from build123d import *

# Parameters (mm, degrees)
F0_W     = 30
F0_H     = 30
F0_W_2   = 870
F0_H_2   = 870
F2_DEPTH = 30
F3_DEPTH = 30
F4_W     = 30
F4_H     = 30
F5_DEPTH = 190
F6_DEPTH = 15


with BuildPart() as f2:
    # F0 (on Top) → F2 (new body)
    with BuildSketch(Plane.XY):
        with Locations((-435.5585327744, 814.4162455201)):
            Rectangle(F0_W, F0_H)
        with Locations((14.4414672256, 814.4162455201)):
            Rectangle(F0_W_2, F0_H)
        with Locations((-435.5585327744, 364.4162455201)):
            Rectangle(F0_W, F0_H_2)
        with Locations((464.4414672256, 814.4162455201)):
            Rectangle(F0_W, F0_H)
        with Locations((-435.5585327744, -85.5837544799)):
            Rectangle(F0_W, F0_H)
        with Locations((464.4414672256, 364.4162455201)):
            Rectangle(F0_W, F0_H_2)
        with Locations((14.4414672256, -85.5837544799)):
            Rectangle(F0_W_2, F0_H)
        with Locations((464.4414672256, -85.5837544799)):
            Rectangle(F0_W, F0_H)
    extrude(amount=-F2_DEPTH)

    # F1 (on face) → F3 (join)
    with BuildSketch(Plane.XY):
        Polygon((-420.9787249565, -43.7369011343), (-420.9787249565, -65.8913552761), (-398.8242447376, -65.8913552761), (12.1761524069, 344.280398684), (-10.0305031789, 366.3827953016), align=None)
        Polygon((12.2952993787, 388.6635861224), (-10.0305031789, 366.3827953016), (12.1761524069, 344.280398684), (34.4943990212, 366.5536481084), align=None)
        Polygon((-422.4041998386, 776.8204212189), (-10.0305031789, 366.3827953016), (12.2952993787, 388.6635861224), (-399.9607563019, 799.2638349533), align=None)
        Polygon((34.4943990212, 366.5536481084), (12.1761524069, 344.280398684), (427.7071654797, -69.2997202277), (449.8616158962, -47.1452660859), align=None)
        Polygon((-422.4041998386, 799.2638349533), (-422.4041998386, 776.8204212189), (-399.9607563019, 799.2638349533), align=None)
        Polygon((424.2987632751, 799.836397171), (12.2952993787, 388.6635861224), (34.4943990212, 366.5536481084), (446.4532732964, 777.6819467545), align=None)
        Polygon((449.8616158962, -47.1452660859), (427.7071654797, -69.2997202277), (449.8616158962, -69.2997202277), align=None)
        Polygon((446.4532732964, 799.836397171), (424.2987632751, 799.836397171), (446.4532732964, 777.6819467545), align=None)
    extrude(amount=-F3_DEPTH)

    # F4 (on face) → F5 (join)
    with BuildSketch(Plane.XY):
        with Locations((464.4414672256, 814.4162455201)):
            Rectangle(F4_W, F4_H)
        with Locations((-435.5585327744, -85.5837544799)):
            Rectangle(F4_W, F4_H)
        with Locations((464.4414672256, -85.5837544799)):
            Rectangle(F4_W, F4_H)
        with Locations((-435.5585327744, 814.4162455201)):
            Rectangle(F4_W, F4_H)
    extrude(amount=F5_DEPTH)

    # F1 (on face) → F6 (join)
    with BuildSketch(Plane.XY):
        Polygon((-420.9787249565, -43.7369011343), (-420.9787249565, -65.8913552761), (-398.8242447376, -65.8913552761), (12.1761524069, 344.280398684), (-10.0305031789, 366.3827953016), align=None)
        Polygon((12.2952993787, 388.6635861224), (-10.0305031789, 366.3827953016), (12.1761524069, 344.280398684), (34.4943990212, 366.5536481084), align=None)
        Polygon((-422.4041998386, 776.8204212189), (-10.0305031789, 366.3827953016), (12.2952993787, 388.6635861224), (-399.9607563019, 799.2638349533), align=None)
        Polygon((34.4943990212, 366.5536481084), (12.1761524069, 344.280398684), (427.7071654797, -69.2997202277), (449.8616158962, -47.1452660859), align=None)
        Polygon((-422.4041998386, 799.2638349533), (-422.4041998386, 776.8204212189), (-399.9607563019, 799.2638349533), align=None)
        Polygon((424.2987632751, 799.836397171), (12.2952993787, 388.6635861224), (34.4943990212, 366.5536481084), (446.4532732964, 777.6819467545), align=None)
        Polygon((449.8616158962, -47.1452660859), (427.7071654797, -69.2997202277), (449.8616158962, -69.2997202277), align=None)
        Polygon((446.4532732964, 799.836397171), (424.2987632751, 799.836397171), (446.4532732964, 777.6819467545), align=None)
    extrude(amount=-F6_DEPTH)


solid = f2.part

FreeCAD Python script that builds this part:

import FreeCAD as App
import Part
import Sketcher
from FreeCAD import Vector
Q = App.Units.Quantity


def add_polygon(sketch, points):
    """Adds a closed chain of lines whose ends are joined by coincident constraints."""
    first, n = sketch.GeometryCount, len(points)
    for a, b in zip(points, points[1:] + points[:1]):
        sketch.addGeometry(Part.LineSegment(App.Vector(*a, 0), App.Vector(*b, 0)), False)
    for i in range(n):
        sketch.addConstraint(Sketcher.Constraint("Coincident", first + i, 2, first + (i + 1) % n, 1))

doc = App.newDocument("Part")
body = doc.addObject("PartDesign::Body", "Body")

sketch1 = body.newObject("Sketcher::SketchObject", "Sketch")
sketch1.AttachmentSupport = (doc.getObject("XY_Plane"), [""])
sketch1.MapMode = "FlatFace"
add_polygon(sketch1, [(-451, -101), (479, -101), (479, 829), (-451, 829)])
add_polygon(sketch1, [(449, -71), (-421, -71), (-421, 799), (449, 799)])
sketch1.addConstraint(Sketcher.Constraint("Horizontal", 0))
sketch1.addConstraint(Sketcher.Constraint("Vertical", 1))
sketch1.addConstraint(Sketcher.Constraint("Horizontal", 2))
sketch1.addConstraint(Sketcher.Constraint("Vertical", 3))
sketch1.addConstraint(Sketcher.Constraint("Horizontal", 4))
sketch1.addConstraint(Sketcher.Constraint("Vertical", 5))
sketch1.addConstraint(Sketcher.Constraint("Horizontal", 6))
sketch1.addConstraint(Sketcher.Constraint("Vertical", 7))
sketch1.addConstraint(Sketcher.Constraint("Equal", 2, 1))
sketch1.addConstraint(Sketcher.Constraint("Equal", 6, 5))
sketch1.addConstraint(Sketcher.Constraint("DistanceX", 0, 1, 0, 2, Q("930 mm")))
sketch1.addConstraint(Sketcher.Constraint("DistanceX", 4, 2, 4, 1, Q("870 mm")))
sketch1.addConstraint(Sketcher.Constraint("DistanceX", 3, 2, 4, 2, Q("30 mm")))
sketch1.addConstraint(Sketcher.Constraint("DistanceY", 3, 2, 4, 2, Q("30 mm")))
sketch1.addConstraint(Sketcher.Constraint("DistanceX", -1, 1, 0, 2, Q("479.441467 mm")))
sketch1.addConstraint(Sketcher.Constraint("DistanceY", 0, 2, -1, 1, Q("100.583754 mm")))
pad1 = body.newObject("PartDesign::Pad", "Pad")
pad1.Profile = sketch1
pad1.Length = 30
pad1.Reversed = True

sketch2 = body.newObject("Sketcher::SketchObject", "Sketch001")
sketch2.AttachmentSupport = (doc.getObject("XY_Plane"), [""])
sketch2.MapMode = "FlatFace"
add_polygon(sketch2, [(-421, -44), (-421, -66), (-399, -66), (12, 344), (428, -69), (450, -69), (450, -47), (34, 367), (446, 778), (446, 800), (424, 800), (12, 389), (-400, 799), (-422, 799), (-422, 777), (-10, 366)])
sketch2.addConstraint(Sketcher.Constraint("Vertical", 0))
sketch2.addConstraint(Sketcher.Constraint("Horizontal", 1))
sketch2.addConstraint(Sketcher.Constraint("Horizontal", 4))
sketch2.addConstraint(Sketcher.Constraint("Vertical", 5))
sketch2.addConstraint(Sketcher.Constraint("Vertical", 8))
sketch2.addConstraint(Sketcher.Constraint("Horizontal", 9))
sketch2.addConstraint(Sketcher.Constraint("Horizontal", 12))
sketch2.addConstraint(Sketcher.Constraint("Vertical", 13))
sketch2.addConstraint(Sketcher.Constraint("Parallel", 2, 7))
sketch2.addConstraint(Sketcher.Constraint("Parallel", 7, 10))
sketch2.addConstraint(Sketcher.Constraint("Parallel", 6, 11))
sketch2.addConstraint(Sketcher.Constraint("Parallel", 3, 14))
sketch2.addConstraint(Sketcher.Constraint("Parallel", 10, 15))
sketch2.addConstraint(Sketcher.Constraint("Equal", 0, 5))
sketch2.addConstraint(Sketcher.Constraint("Equal", 4, 8))
sketch2.addConstraint(Sketcher.Constraint("DistanceY", 2, 2, 8, 2, Q("455.555998 mm")))
sketch2.addConstraint(Sketcher.Constraint("DistanceX", 1, 1, 1, 2, Q("22.15448 mm")))
sketch2.addConstraint(Sketcher.Constraint("DistanceX", 4, 1, 4, 2, Q("22.15445 mm")))
sketch2.addConstraint(Sketcher.Constraint("DistanceX", 9, 2, 9, 1, Q("22.15451 mm")))
sketch2.addConstraint(Sketcher.Constraint("DistanceY", -1, 1, 2, 2, Q("344.280399 mm")))
sketch2.addConstraint(Sketcher.Constraint("DistanceX", -1, 1, 6, 2, Q("34.494399 mm")))
sketch2.addConstraint(Sketcher.Constraint("DistanceX", -1, 1, 10, 2, Q("12.295299 mm")))
sketch2.addConstraint(Sketcher.Constraint("DistanceX", 12, 2, -1, 1, Q("422.4042 mm")))
sketch2.addConstraint(Sketcher.Constraint("DistanceY", 15, 2, -1, 1, Q("43.736901 mm")))
sketch2.addConstraint(Sketcher.Constraint("DistanceY", 6, 2, 7, 2, Q("411.128299 mm")))
sketch2.addConstraint(Sketcher.Constraint("Distance", 6, Q("586.23947 mm")))
sketch2.addConstraint(Sketcher.Constraint("Distance", 11, Q("581.848451 mm")))
sketch2.addConstraint(Sketcher.Constraint("Distance", 15, Q("580.582988 mm")))
sketch2.addConstraint(Sketcher.Constraint("DistanceX", 12, 2, 12, 1, Q("22.443444 mm")))
sketch2.addConstraint(Sketcher.Constraint("DistanceY", 0, 2, 0, 1, Q("22.154454 mm")))
sketch2.addConstraint(Sketcher.Constraint("DistanceY", 13, 2, 13, 1, Q("22.443414 mm")))
sketch2.addConstraint(Sketcher.Constraint("DistanceX", 1, 2, 3, 2, Q("826.53141 mm")))
pad2 = body.newObject("PartDesign::Pad", "Pad001")
pad2.Profile = sketch2
pad2.Length = 30
pad2.Reversed = True

sketch3 = body.newObject("Sketcher::SketchObject", "Sketch002")
sketch3.AttachmentSupport = (doc.getObject("XY_Plane"), [""])
sketch3.MapMode = "FlatFace"
add_polygon(sketch3, [(449, 829), (449, 799), (479, 799), (479, 829)])
add_polygon(sketch3, [(-451, -71), (-451, -101), (-421, -101), (-421, -71)])
add_polygon(sketch3, [(449, -71), (449, -101), (479, -101), (479, -71)])
add_polygon(sketch3, [(-451, 829), (-451, 799), (-421, 799), (-421, 829)])
sketch3.addConstraint(Sketcher.Constraint("Vertical", 0))
sketch3.addConstraint(Sketcher.Constraint("Horizontal", 1))
sketch3.addConstraint(Sketcher.Constraint("Vertical", 2))
sketch3.addConstraint(Sketcher.Constraint("Horizontal", 3))
sketch3.addConstraint(Sketcher.Constraint("Vertical", 4))
sketch3.addConstraint(Sketcher.Constraint("Horizontal", 5))
sketch3.addConstraint(Sketcher.Constraint("Vertical", 6))
sketch3.addConstraint(Sketcher.Constraint("Horizontal", 7))
sketch3.addConstraint(Sketcher.Constraint("Vertical", 8))
sketch3.addConstraint(Sketcher.Constraint("Horizontal", 9))
sketch3.addConstraint(Sketcher.Constraint("Vertical", 10))
sketch3.addConstraint(Sketcher.Constraint("Horizontal", 11))
sketch3.addConstraint(Sketcher.Constraint("Vertical", 12))
sketch3.addConstraint(Sketcher.Constraint("Horizontal", 13))
sketch3.addConstraint(Sketcher.Constraint("Vertical", 14))
sketch3.addConstraint(Sketcher.Constraint("Horizontal", 15))
sketch3.addConstraint(Sketcher.Constraint("Horizontal", 5, 2, 8, 2))
sketch3.addConstraint(Sketcher.Constraint("Horizontal", 7, 2, 10, 2))
sketch3.addConstraint(Sketcher.Constraint("Horizontal", 1, 2, 12, 2))
sketch3.addConstraint(Sketcher.Constraint("Horizontal", 3, 2, 14, 2))
sketch3.addConstraint(Sketcher.Constraint("Vertical", 3, 2, 8, 2))
sketch3.addConstraint(Sketcher.Constraint("Vertical", 2, 2, 9, 2))
sketch3.addConstraint(Sketcher.Constraint("Vertical", 7, 2, 12, 2))
sketch3.addConstraint(Sketcher.Constraint("Vertical", 6, 2, 13, 2))
sketch3.addConstraint(Sketcher.Constraint("Equal", 3, 5))
sketch3.addConstraint(Sketcher.Constraint("Equal", 15, 0))
sketch3.addConstraint(Sketcher.Constraint("Equal", 2, 4))
sketch3.addConstraint(Sketcher.Constraint("DistanceX", 1, 1, 1, 2, Q("30 mm")))
sketch3.addConstraint(Sketcher.Constraint("DistanceX", 4, 2, 0, 2, Q("900 mm")))
sketch3.addConstraint(Sketcher.Constraint("DistanceY", 4, 2, 0, 2, Q("900 mm")))
sketch3.addConstraint(Sketcher.Constraint("DistanceX", -1, 1, 0, 2, Q("449.441467 mm")))
sketch3.addConstraint(Sketcher.Constraint("DistanceY", -1, 1, 0, 2, Q("799.416246 mm")))
pad3 = body.newObject("PartDesign::Pad", "Pad002")
pad3.Profile = sketch3
pad3.Length = 190

sketch4 = body.newObject("Sketcher::SketchObject", "Sketch003")
sketch4.AttachmentSupport = (doc.getObject("XY_Plane"), [""])
sketch4.MapMode = "FlatFace"
add_polygon(sketch4, [(-421, -44), (-421, -66), (-399, -66), (12, 344), (428, -69), (450, -69), (450, -47), (34, 367), (446, 778), (446, 800), (424, 800), (12, 389), (-400, 799), (-422, 799), (-422, 777), (-10, 366)])
sketch4.addConstraint(Sketcher.Constraint("Vertical", 0))
sketch4.addConstraint(Sketcher.Constraint("Horizontal", 1))
sketch4.addConstraint(Sketcher.Constraint("Horizontal", 4))
sketch4.addConstraint(Sketcher.Constraint("Vertical", 5))
sketch4.addConstraint(Sketcher.Constraint("Vertical", 8))
sketch4.addConstraint(Sketcher.Constraint("Horizontal", 9))
sketch4.addConstraint(Sketcher.Constraint("Horizontal", 12))
sketch4.addConstraint(Sketcher.Constraint("Vertical", 13))
sketch4.addConstraint(Sketcher.Constraint("Parallel", 2, 7))
sketch4.addConstraint(Sketcher.Constraint("Parallel", 7, 10))
sketch4.addConstraint(Sketcher.Constraint("Parallel", 6, 11))
sketch4.addConstraint(Sketcher.Constraint("Parallel", 3, 14))
sketch4.addConstraint(Sketcher.Constraint("Parallel", 10, 15))
sketch4.addConstraint(Sketcher.Constraint("Equal", 0, 5))
sketch4.addConstraint(Sketcher.Constraint("Equal", 4, 8))
sketch4.addConstraint(Sketcher.Constraint("DistanceY", 2, 2, 8, 2, Q("455.555998 mm")))
sketch4.addConstraint(Sketcher.Constraint("DistanceX", 1, 1, 1, 2, Q("22.15448 mm")))
sketch4.addConstraint(Sketcher.Constraint("DistanceX", 4, 1, 4, 2, Q("22.15445 mm")))
sketch4.addConstraint(Sketcher.Constraint("DistanceX", 9, 2, 9, 1, Q("22.15451 mm")))
sketch4.addConstraint(Sketcher.Constraint("DistanceY", -1, 1, 2, 2, Q("344.280399 mm")))
sketch4.addConstraint(Sketcher.Constraint("DistanceX", -1, 1, 6, 2, Q("34.494399 mm")))
sketch4.addConstraint(Sketcher.Constraint("DistanceX", -1, 1, 10, 2, Q("12.295299 mm")))
sketch4.addConstraint(Sketcher.Constraint("DistanceX", 12, 2, -1, 1, Q("422.4042 mm")))
sketch4.addConstraint(Sketcher.Constraint("DistanceY", 15, 2, -1, 1, Q("43.736901 mm")))
sketch4.addConstraint(Sketcher.Constraint("DistanceY", 6, 2, 7, 2, Q("411.128299 mm")))
sketch4.addConstraint(Sketcher.Constraint("Distance", 6, Q("586.23947 mm")))
sketch4.addConstraint(Sketcher.Constraint("Distance", 11, Q("581.848451 mm")))
sketch4.addConstraint(Sketcher.Constraint("Distance", 15, Q("580.582988 mm")))
sketch4.addConstraint(Sketcher.Constraint("DistanceX", 12, 2, 12, 1, Q("22.443444 mm")))
sketch4.addConstraint(Sketcher.Constraint("DistanceY", 0, 2, 0, 1, Q("22.154454 mm")))
sketch4.addConstraint(Sketcher.Constraint("DistanceY", 13, 2, 13, 1, Q("22.443414 mm")))
sketch4.addConstraint(Sketcher.Constraint("DistanceX", 1, 2, 3, 2, Q("826.53141 mm")))
pad4 = body.newObject("PartDesign::Pad", "Pad003")
pad4.Profile = sketch4
pad4.Length = 15
pad4.Reversed = True

doc.recompute()
